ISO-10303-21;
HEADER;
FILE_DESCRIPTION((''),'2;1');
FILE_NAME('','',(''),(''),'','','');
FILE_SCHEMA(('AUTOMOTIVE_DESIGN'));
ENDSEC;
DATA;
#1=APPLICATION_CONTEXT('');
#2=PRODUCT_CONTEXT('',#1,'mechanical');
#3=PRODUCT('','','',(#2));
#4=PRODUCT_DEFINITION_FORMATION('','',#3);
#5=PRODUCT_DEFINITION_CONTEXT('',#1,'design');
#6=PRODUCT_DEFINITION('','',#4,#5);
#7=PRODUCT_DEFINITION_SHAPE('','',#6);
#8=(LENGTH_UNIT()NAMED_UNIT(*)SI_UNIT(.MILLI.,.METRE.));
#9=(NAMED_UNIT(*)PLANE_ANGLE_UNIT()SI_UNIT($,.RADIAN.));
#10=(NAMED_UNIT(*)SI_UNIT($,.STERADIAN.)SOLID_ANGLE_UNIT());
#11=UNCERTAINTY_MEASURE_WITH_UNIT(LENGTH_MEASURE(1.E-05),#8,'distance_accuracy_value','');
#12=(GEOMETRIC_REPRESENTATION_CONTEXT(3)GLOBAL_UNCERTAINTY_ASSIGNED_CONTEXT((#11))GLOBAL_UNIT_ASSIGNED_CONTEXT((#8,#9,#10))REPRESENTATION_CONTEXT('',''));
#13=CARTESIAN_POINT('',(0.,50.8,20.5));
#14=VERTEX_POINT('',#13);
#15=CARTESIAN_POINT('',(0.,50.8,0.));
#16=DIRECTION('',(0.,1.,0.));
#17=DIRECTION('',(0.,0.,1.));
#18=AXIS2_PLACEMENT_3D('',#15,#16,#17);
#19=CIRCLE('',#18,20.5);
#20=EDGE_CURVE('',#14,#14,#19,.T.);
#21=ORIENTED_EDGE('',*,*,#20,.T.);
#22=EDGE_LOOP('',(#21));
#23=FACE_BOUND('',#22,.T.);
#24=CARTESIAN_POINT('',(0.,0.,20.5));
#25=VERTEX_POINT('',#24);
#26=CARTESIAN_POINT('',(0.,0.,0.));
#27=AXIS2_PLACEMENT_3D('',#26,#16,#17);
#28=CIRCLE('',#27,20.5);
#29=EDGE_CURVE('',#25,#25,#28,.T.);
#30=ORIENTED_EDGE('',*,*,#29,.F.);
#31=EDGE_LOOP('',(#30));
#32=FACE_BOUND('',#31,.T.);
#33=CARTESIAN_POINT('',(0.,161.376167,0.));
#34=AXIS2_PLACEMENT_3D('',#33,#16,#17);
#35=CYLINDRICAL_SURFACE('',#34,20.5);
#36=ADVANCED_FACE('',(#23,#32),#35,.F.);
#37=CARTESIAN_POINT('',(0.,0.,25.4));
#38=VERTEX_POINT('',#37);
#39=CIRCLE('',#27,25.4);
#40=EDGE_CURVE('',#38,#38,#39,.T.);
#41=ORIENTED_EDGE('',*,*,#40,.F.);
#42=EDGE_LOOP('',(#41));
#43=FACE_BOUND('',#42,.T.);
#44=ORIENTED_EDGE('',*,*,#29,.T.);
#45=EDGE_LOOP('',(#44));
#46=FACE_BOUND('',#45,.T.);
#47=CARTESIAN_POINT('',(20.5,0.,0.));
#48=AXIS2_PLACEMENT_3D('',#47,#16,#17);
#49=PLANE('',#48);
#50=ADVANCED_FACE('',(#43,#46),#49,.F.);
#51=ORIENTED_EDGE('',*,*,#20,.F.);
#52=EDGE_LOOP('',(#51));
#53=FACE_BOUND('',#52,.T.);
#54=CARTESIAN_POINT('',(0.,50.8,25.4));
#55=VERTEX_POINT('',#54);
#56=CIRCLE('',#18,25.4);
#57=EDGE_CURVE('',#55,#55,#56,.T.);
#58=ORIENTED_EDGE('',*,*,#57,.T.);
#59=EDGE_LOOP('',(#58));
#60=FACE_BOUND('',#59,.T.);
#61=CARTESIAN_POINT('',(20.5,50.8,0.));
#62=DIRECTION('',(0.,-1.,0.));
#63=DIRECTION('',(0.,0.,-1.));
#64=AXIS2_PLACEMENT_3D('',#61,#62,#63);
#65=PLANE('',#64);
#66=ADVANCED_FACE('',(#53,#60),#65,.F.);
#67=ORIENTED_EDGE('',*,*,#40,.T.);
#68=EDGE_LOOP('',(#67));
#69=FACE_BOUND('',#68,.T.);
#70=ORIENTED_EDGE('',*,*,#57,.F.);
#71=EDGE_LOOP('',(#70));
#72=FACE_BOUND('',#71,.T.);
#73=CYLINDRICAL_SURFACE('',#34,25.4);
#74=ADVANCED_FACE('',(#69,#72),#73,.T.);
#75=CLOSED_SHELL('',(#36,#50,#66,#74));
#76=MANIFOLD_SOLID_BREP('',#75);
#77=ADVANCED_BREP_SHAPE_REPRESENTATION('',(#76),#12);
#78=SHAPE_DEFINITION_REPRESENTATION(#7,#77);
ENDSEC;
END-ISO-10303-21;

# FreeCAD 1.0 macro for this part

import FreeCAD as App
import Part
import Sketcher
from FreeCAD import Vector
Q = App.Units.Quantity


def add_polygon(sketch, points):
    """Adds a closed chain of lines whose ends are joined by coincident constraints."""
    first, n = sketch.GeometryCount, len(points)
    for a, b in zip(points, points[1:] + points[:1]):
        sketch.addGeometry(Part.LineSegment(App.Vector(*a, 0), App.Vector(*b, 0)), False)
    for i in range(n):
        sketch.addConstraint(Sketcher.Constraint("Coincident", first + i, 2, first + (i + 1) % n, 1))

doc = App.newDocument("Part")
params = doc.addObject("Spreadsheet::Sheet", "Params")
for row, (alias, value) in enumerate([
    ("sketch1_width", "4.9 mm"),
    ("sketch1_height", "50.8 mm"),
    ("revolution_angle", "360 deg"),
], start=1):
    params.set(f"A{row}", alias)
    params.set(f"B{row}", "=" + value)
    params.setAlias(f"B{row}", alias)

body = doc.addObject("PartDesign::Body", "Body")

sketch1 = doc.addObject("Sketcher::SketchObject", "Sketch")
body.addObject(sketch1)
sketch1.AttachmentSupport = (doc.XY_Plane, [""])
sketch1.MapMode = "FlatFace"
add_polygon(sketch1, [(20.5, 50.8), (20.5, 0), (25.4, 0), (25.4, 50.8)])
sketch1.addConstraint(Sketcher.Constraint("Vertical", 0))
sketch1.addConstraint(Sketcher.Constraint("Horizontal", 1))
sketch1.addConstraint(Sketcher.Constraint("Vertical", 2))
sketch1.addConstraint(Sketcher.Constraint("Horizontal", 3))
sketch1.addConstraint(Sketcher.Constraint("PointOnObject", 0, 2, -1))
sketch1.addConstraint(Sketcher.Constraint("DistanceX", 1, 1, 1, 2, Q("4.9 mm")))
sketch1.addConstraint(Sketcher.Constraint("DistanceY", 0, 2, 0, 1, Q("50.8 mm")))
sketch1.addConstraint(Sketcher.Constraint("DistanceX", -1, 1, 0, 2, Q("20.5 mm")))
sketch1.setExpression("Constraints[9]", "Params.sketch1_width")
sketch1.setExpression("Constraints[10]", "Params.sketch1_height")
revolution = doc.addObject("PartDesign::Revolution", "Revolution")
body.addObject(revolution)
revolution.Profile = sketch1
revolution.ReferenceAxis = (sketch1, ["V_Axis"])
revolution.setExpression("Angle", "Params.revolution_angle")

doc.recompute()
